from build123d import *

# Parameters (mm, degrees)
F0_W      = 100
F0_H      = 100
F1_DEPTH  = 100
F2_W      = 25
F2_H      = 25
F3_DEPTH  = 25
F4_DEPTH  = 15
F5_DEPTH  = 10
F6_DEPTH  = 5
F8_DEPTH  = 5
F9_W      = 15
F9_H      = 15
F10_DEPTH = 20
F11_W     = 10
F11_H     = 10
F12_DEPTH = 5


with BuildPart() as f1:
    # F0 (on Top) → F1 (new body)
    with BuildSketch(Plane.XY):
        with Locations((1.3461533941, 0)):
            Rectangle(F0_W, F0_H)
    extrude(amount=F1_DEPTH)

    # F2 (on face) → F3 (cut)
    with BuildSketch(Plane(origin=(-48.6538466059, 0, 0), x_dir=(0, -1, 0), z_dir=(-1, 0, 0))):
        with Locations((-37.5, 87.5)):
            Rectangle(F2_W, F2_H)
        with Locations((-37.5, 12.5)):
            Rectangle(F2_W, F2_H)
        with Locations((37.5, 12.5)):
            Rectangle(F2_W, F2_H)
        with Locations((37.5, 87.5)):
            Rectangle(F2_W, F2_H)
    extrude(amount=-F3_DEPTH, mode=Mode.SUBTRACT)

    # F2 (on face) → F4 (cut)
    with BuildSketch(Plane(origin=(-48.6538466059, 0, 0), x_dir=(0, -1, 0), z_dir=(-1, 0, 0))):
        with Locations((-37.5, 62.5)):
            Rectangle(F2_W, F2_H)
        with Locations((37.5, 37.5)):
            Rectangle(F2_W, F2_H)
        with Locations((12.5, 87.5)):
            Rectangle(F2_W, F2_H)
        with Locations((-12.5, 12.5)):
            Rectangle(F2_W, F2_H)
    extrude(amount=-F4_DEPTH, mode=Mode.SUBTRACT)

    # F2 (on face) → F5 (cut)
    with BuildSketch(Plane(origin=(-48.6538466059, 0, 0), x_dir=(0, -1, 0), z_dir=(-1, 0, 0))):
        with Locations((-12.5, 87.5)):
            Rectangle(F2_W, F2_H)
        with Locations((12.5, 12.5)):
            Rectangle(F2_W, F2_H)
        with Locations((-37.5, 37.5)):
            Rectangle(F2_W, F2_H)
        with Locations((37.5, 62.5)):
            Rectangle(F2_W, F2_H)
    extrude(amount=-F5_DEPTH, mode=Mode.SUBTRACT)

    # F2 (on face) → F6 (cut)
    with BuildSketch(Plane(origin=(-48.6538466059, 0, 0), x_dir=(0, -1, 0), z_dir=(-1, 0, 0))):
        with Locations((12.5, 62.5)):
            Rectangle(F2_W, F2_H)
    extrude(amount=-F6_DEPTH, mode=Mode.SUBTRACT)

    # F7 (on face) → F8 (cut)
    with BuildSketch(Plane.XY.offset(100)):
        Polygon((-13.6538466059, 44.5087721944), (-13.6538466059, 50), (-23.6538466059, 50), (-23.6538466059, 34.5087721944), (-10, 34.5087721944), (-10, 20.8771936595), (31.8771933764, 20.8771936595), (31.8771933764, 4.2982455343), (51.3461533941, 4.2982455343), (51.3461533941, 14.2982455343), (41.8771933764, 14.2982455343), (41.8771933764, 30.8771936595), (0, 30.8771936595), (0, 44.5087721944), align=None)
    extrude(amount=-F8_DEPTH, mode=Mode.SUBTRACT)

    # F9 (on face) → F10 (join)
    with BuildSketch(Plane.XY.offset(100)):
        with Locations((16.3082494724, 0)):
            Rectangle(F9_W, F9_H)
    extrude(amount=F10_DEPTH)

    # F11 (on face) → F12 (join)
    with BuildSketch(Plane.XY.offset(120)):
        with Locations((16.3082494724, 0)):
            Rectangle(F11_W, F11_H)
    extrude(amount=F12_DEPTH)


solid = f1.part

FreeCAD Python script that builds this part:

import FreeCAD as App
import Part
import Sketcher

doc = App.newDocument("Part")
params = doc.addObject("Spreadsheet::Sheet", "Params")
for row, (alias, value) in enumerate([
    ("sketch1_width", "100 mm"),
    ("pad1_length", "100 mm"),
    ("sketch2_width", "25 mm"),
    ("pocket1_length", "25 mm"),
    ("sketch3_width", "25 mm"),
    ("pocket2_length", "15 mm"),
    ("sketch4_width", "25 mm"),
    ("pocket3_length", "10 mm"),
    ("sketch5_width", "25 mm"),
    ("pocket4_length", "5 mm"),
    ("sketch6_width", "10 mm"),
    ("pocket5_length", "5 mm"),
    ("sketch7_width", "15 mm"),
    ("pad2_length", "20 mm"),
    ("sketch8_width", "10 mm"),
    ("pad3_length", "5 mm"),
], start=1):
    params.set(f"A{row}", alias)
    params.set(f"B{row}", "=" + value)
    params.setAlias(f"B{row}", alias)

body = doc.addObject("PartDesign::Body", "Body")

# Sketch on XY plane
sketch1 = doc.addObject("Sketcher::SketchObject", "Sketch")
body.addObject(sketch1)
sketch1.AttachmentSupport = (doc.XY_Plane, [""])
sketch1.MapMode = "FlatFace"
sketch1.addGeometry(Part.LineSegment(App.Vector(-49, 50, 0), App.Vector(-49, -50, 0)), False)
sketch1.addGeometry(Part.LineSegment(App.Vector(-49, -50, 0), App.Vector(51, -50, 0)), False)
sketch1.addGeometry(Part.LineSegment(App.Vector(51, -50, 0), App.Vector(51, 50, 0)), False)
sketch1.addGeometry(Part.LineSegment(App.Vector(51, 50, 0), App.Vector(-49, 50, 0)), False)
sketch1.addConstraint(Sketcher.Constraint("Coincident", 0, 2, 1, 1))
sketch1.addConstraint(Sketcher.Constraint("Coincident", 1, 2, 2, 1))
sketch1.addConstraint(Sketcher.Constraint("Coincident", 2, 2, 3, 1))
sketch1.addConstraint(Sketcher.Constraint("Coincident", 3, 2, 0, 1))
sketch1.addConstraint(Sketcher.Constraint("Vertical", 0))
sketch1.addConstraint(Sketcher.Constraint("Horizontal", 1))
sketch1.addConstraint(Sketcher.Constraint("Vertical", 2))
sketch1.addConstraint(Sketcher.Constraint("Horizontal", 3))
sketch1.addConstraint(Sketcher.Constraint("Equal", 3, 0))
sketch1.addConstraint(Sketcher.Constraint("DistanceX", 1, 1, 1, 2, 100.0))
sketch1.addConstraint(Sketcher.Constraint("DistanceY", 0, 2, -1, 1, 50.0))
sketch1.addConstraint(Sketcher.Constraint("DistanceX", 0, 2, -1, 1, 48.653847))
sketch1.setExpression("Constraints[9]", "Params.sketch1_width")
pad1 = doc.addObject("PartDesign::Pad", "Pad")
body.addObject(pad1)
pad1.Profile = sketch1
pad1.setExpression("Length", "Params.pad1_length")

# Sketch on YZ plane
sketch2 = doc.addObject("Sketcher::SketchObject", "Sketch001")
body.addObject(sketch2)
sketch2.AttachmentSupport = (doc.YZ_Plane, [""])
sketch2.MapMode = "FlatFace"
sketch2.AttachmentOffset = App.Placement(App.Vector(0, 0, -48.653847), App.Rotation())
sketch2.addGeometry(Part.LineSegment(App.Vector(50, 100, 0), App.Vector(50, 75, 0)), False)
sketch2.addGeometry(Part.LineSegment(App.Vector(50, 75, 0), App.Vector(25, 75, 0)), False)
sketch2.addGeometry(Part.LineSegment(App.Vector(25, 75, 0), App.Vector(25, 100, 0)), False)
sketch2.addGeometry(Part.LineSegment(App.Vector(25, 100, 0), App.Vector(50, 100, 0)), False)
sketch2.addGeometry(Part.LineSegment(App.Vector(50, 25, 0), App.Vector(50, 0, 0)), False)
sketch2.addGeometry(Part.LineSegment(App.Vector(50, 0, 0), App.Vector(25, 0, 0)), False)
sketch2.addGeometry(Part.LineSegment(App.Vector(25, 0, 0), App.Vector(25, 25, 0)), False)
sketch2.addGeometry(Part.LineSegment(App.Vector(25, 25, 0), App.Vector(50, 25, 0)), False)
sketch2.addGeometry(Part.LineSegment(App.Vector(-25, 25, 0), App.Vector(-25, 0, 0)), False)
sketch2.addGeometry(Part.LineSegment(App.Vector(-25, 0, 0), App.Vector(-50, 0, 0)), False)
sketch2.addGeometry(Part.LineSegment(App.Vector(-50, 0, 0), App.Vector(-50, 25, 0)), False)
sketch2.addGeometry(Part.LineSegment(App.Vector(-50, 25, 0), App.Vector(-25, 25, 0)), False)
sketch2.addGeometry(Part.LineSegment(App.Vector(-25, 100, 0), App.Vector(-25, 75, 0)), False)
sketch2.addGeometry(Part.LineSegment(App.Vector(-25, 75, 0), App.Vector(-50, 75, 0)), False)
sketch2.addGeometry(Part.LineSegment(App.Vector(-50, 75, 0), App.Vector(-50, 100, 0)), False)
sketch2.addGeometry(Part.LineSegment(App.Vector(-50, 100, 0), App.Vector(-25, 100, 0)), False)
sketch2.addConstraint(Sketcher.Constraint("Coincident", 0, 2, 1, 1))
sketch2.addConstraint(Sketcher.Constraint("Coincident", 1, 2, 2, 1))
sketch2.addConstraint(Sketcher.Constraint("Coincident", 2, 2, 3, 1))
sketch2.addConstraint(Sketcher.Constraint("Coincident", 3, 2, 0, 1))
sketch2.addConstraint(Sketcher.Constraint("Coincident", 4, 2, 5, 1))
sketch2.addConstraint(Sketcher.Constraint("Coincident", 5, 2, 6, 1))
sketch2.addConstraint(Sketcher.Constraint("Coincident", 6, 2, 7, 1))
sketch2.addConstraint(Sketcher.Constraint("Coincident", 7, 2, 4, 1))
sketch2.addConstraint(Sketcher.Constraint("Coincident", 8, 2, 9, 1))
sketch2.addConstraint(Sketcher.Constraint("Coincident", 9, 2, 10, 1))
sketch2.addConstraint(Sketcher.Constraint("Coincident", 10, 2, 11, 1))
sketch2.addConstraint(Sketcher.Constraint("Coincident", 11, 2, 8, 1))
sketch2.addConstraint(Sketcher.Constraint("Coincident", 12, 2, 13, 1))
sketch2.addConstraint(Sketcher.Constraint("Coincident", 13, 2, 14, 1))
sketch2.addConstraint(Sketcher.Constraint("Coincident", 14, 2, 15, 1))
sketch2.addConstraint(Sketcher.Constraint("Coincident", 15, 2, 12, 1))
sketch2.addConstraint(Sketcher.Constraint("Vertical", 0))
sketch2.addConstraint(Sketcher.Constraint("Horizontal", 1))
sketch2.addConstraint(Sketcher.Constraint("Vertical", 2))
sketch2.addConstraint(Sketcher.Constraint("Horizontal", 3))
sketch2.addConstraint(Sketcher.Constraint("Vertical", 4))
sketch2.addConstraint(Sketcher.Constraint("Horizontal", 5))
sketch2.addConstraint(Sketcher.Constraint("Vertical", 6))
sketch2.addConstraint(Sketcher.Constraint("Horizontal", 7))
sketch2.addConstraint(Sketcher.Constraint("Vertical", 8))
sketch2.addConstraint(Sketcher.Constraint("Horizontal", 9))
sketch2.addConstraint(Sketcher.Constraint("Vertical", 10))
sketch2.addConstraint(Sketcher.Constraint("Horizontal", 11))
sketch2.addConstraint(Sketcher.Constraint("Vertical", 12))
sketch2.addConstraint(Sketcher.Constraint("Horizontal", 13))
sketch2.addConstraint(Sketcher.Constraint("Vertical", 14))
sketch2.addConstraint(Sketcher.Constraint("Horizontal", 15))
sketch2.addConstraint(Sketcher.Constraint("Symmetric", 5, 2, 8, 2, -1, 1))
sketch2.addConstraint(Sketcher.Constraint("Symmetric", 4, 2, 9, 2, -2))
sketch2.addConstraint(Sketcher.Constraint("Symmetric", 1, 2, 12, 2, -2))
sketch2.addConstraint(Sketcher.Constraint("Symmetric", 3, 2, 14, 2, -2))
sketch2.addConstraint(Sketcher.Constraint("Horizontal", 7, 2, 10, 2))
sketch2.addConstraint(Sketcher.Constraint("Vertical", 3, 2, 4, 2))
sketch2.addConstraint(Sketcher.Constraint("Vertical", 2, 2, 5, 2))
sketch2.addConstraint(Sketcher.Constraint("Equal", 15, 0))
sketch2.addConstraint(Sketcher.Constraint("Equal", 2, 4))
sketch2.addConstraint(Sketcher.Constraint("DistanceX", 1, 2, 1, 1, 25.0))
sketch2.addConstraint(Sketcher.Constraint("DistanceX", -1, 1, 0, 2, 50.0))
sketch2.addConstraint(Sketcher.Constraint("DistanceY", -1, 1, 0, 2, 75.0))
sketch2.setExpression("Constraints[41]", "Params.sketch2_width")
pocket1 = doc.addObject("PartDesign::Pocket", "Pocket")
body.addObject(pocket1)
pocket1.Profile = sketch2
pocket1.setExpression("Length", "Params.pocket1_length")
pocket1.Reversed = True

# Sketch on YZ plane
sketch3 = doc.addObject("Sketcher::SketchObject", "Sketch002")
body.addObject(sketch3)
sketch3.AttachmentSupport = (doc.YZ_Plane, [""])
sketch3.MapMode = "FlatFace"
sketch3.AttachmentOffset = App.Placement(App.Vector(0, 0, -48.653847), App.Rotation())
sketch3.addGeometry(Part.LineSegment(App.Vector(50, 75, 0), App.Vector(50, 50, 0)), False)
sketch3.addGeometry(Part.LineSegment(App.Vector(50, 50, 0), App.Vector(25, 50, 0)), False)
sketch3.addGeometry(Part.LineSegment(App.Vector(25, 50, 0), App.Vector(25, 75, 0)), False)
sketch3.addGeometry(Part.LineSegment(App.Vector(25, 75, 0), App.Vector(50, 75, 0)), False)
sketch3.addGeometry(Part.LineSegment(App.Vector(-25, 50, 0), App.Vector(-25, 25, 0)), False)
sketch3.addGeometry(Part.LineSegment(App.Vector(-25, 25, 0), App.Vector(-50, 25, 0)), False)
sketch3.addGeometry(Part.LineSegment(App.Vector(-50, 25, 0), App.Vector(-50, 50, 0)), False)
sketch3.addGeometry(Part.LineSegment(App.Vector(-50, 50, 0), App.Vector(-25, 50, 0)), False)
sketch3.addGeometry(Part.LineSegment(App.Vector(0, 100, 0), App.Vector(0, 75, 0)), False)
sketch3.addGeometry(Part.LineSegment(App.Vector(0, 75, 0), App.Vector(-25, 75, 0)), False)
sketch3.addGeometry(Part.LineSegment(App.Vector(-25, 75, 0), App.Vector(-25, 100, 0)), False)
sketch3.addGeometry(Part.LineSegment(App.Vector(-25, 100, 0), App.Vector(0, 100, 0)), False)
sketch3.addGeometry(Part.LineSegment(App.Vector(25, 25, 0), App.Vector(25, 0, 0)), False)
sketch3.addGeometry(Part.LineSegment(App.Vector(25, 0, 0), App.Vector(0, 0, 0)), False)
sketch3.addGeometry(Part.LineSegment(App.Vector(0, 0, 0), App.Vector(0, 25, 0)), False)
sketch3.addGeometry(Part.LineSegment(App.Vector(0, 25, 0), App.Vector(25, 25, 0)), False)
sketch3.addConstraint(Sketcher.Constraint("Coincident", 0, 2, 1, 1))
sketch3.addConstraint(Sketcher.Constraint("Coincident", 1, 2, 2, 1))
sketch3.addConstraint(Sketcher.Constraint("Coincident", 2, 2, 3, 1))
sketch3.addConstraint(Sketcher.Constraint("Coincident", 3, 2, 0, 1))
sketch3.addConstraint(Sketcher.Constraint("Coincident", 4, 2, 5, 1))
sketch3.addConstraint(Sketcher.Constraint("Coincident", 5, 2, 6, 1))
sketch3.addConstraint(Sketcher.Constraint("Coincident", 6, 2, 7, 1))
sketch3.addConstraint(Sketcher.Constraint("Coincident", 7, 2, 4, 1))
sketch3.addConstraint(Sketcher.Constraint("Coincident", 8, 2, 9, 1))
sketch3.addConstraint(Sketcher.Constraint("Coincident", 9, 2, 10, 1))
sketch3.addConstraint(Sketcher.Constraint("Coincident", 10, 2, 11, 1))
sketch3.addConstraint(Sketcher.Constraint("Coincident", 11, 2, 8, 1))
sketch3.addConstraint(Sketcher.Constraint("Coincident", 12, 2, 13, 1))
sketch3.addConstraint(Sketcher.Constraint("Coincident", 13, 2, 14, 1))
sketch3.addConstraint(Sketcher.Constraint("Coincident", 14, 2, 15, 1))
sketch3.addConstraint(Sketcher.Constraint("Coincident", 15, 2, 12, 1))
sketch3.addConstraint(Sketcher.Constraint("Vertical", 0))
sketch3.addConstraint(Sketcher.Constraint("Horizontal", 1))
sketch3.addConstraint(Sketcher.Constraint("Vertical", 2))
sketch3.addConstraint(Sketcher.Constraint("Horizontal", 3))
sketch3.addConstraint(Sketcher.Constraint("Vertical", 4))
sketch3.addConstraint(Sketcher.Constraint("Horizontal", 5))
sketch3.addConstraint(Sketcher.Constraint("Vertical", 6))
sketch3.addConstraint(Sketcher.Constraint("Horizontal", 7))
sketch3.addConstraint(Sketcher.Constraint("Vertical", 8))
sketch3.addConstraint(Sketcher.Constraint("Horizontal", 9))
sketch3.addConstraint(Sketcher.Constraint("Vertical", 10))
sketch3.addConstraint(Sketcher.Constraint("Horizontal", 11))
sketch3.addConstraint(Sketcher.Constraint("Vertical", 12))
sketch3.addConstraint(Sketcher.Constraint("Horizontal", 13))
sketch3.addConstraint(Sketcher.Constraint("Vertical", 14))
sketch3.addConstraint(Sketcher.Constraint("Horizontal", 15))
sketch3.addConstraint(Sketcher.Constraint("Coincident", 13, 2, -1, 1))
sketch3.addConstraint(Sketcher.Constraint("Symmetric", 0, 2, 6, 2, -2))
sketch3.addConstraint(Sketcher.Constraint("Symmetric", 2, 2, 9, 2, -2))
sketch3.addConstraint(Sketcher.Constraint("Symmetric", 4, 2, 15, 2, -2))
sketch3.addConstraint(Sketcher.Constraint("PointOnObject", 8, 2, -2))
sketch3.addConstraint(Sketcher.Constraint("Vertical", 7, 2, 9, 2))
sketch3.addConstraint(Sketcher.Constraint("Equal", 7, 9))
sketch3.addConstraint(Sketcher.Constraint("Equal", 15, 0))
sketch3.addConstraint(Sketcher.Constraint("Equal", 2, 4))
sketch3.addConstraint(Sketcher.Constraint("Equal", 6, 8))
sketch3.addConstraint(Sketcher.Constraint("Equal", 10, 12))
sketch3.addConstraint(Sketcher.Constraint("DistanceX", 1, 2, 1, 1, 25.0))
sketch3.setExpression("Constraints[43]", "Params.sketch3_width")
pocket2 = doc.addObject("PartDesign::Pocket", "Pocket001")
body.addObject(pocket2)
pocket2.Profile = sketch3
pocket2.setExpression("Length", "Params.pocket2_length")
pocket2.Reversed = True

# Sketch on YZ plane
sketch4 = doc.addObject("Sketcher::SketchObject", "Sketch003")
body.addObject(sketch4)
sketch4.AttachmentSupport = (doc.YZ_Plane, [""])
sketch4.MapMode = "FlatFace"
sketch4.AttachmentOffset = App.Placement(App.Vector(0, 0, -48.653847), App.Rotation())
sketch4.addGeometry(Part.LineSegment(App.Vector(25, 100, 0), App.Vector(25, 75, 0)), False)
sketch4.addGeometry(Part.LineSegment(App.Vector(25, 75, 0), App.Vector(0, 75, 0)), False)
sketch4.addGeometry(Part.LineSegment(App.Vector(0, 75, 0), App.Vector(0, 100, 0)), False)
sketch4.addGeometry(Part.LineSegment(App.Vector(0, 100, 0), App.Vector(25, 100, 0)), False)
sketch4.addGeometry(Part.LineSegment(App.Vector(0, 25, 0), App.Vector(0, 0, 0)), False)
sketch4.addGeometry(Part.LineSegment(App.Vector(0, 0, 0), App.Vector(-25, 0, 0)), False)
sketch4.addGeometry(Part.LineSegment(App.Vector(-25, 0, 0), App.Vector(-25, 25, 0)), False)
sketch4.addGeometry(Part.LineSegment(App.Vector(-25, 25, 0), App.Vector(0, 25, 0)), False)
sketch4.addGeometry(Part.LineSegment(App.Vector(50, 50, 0), App.Vector(50, 25, 0)), False)
sketch4.addGeometry(Part.LineSegment(App.Vector(50, 25, 0), App.Vector(25, 25, 0)), False)
sketch4.addGeometry(Part.LineSegment(App.Vector(25, 25, 0), App.Vector(25, 50, 0)), False)
sketch4.addGeometry(Part.LineSegment(App.Vector(25, 50, 0), App.Vector(50, 50, 0)), False)
sketch4.addGeometry(Part.LineSegment(App.Vector(-25, 75, 0), App.Vector(-25, 50, 0)), False)
sketch4.addGeometry(Part.LineSegment(App.Vector(-25, 50, 0), App.Vector(-50, 50, 0)), False)
sketch4.addGeometry(Part.LineSegment(App.Vector(-50, 50, 0), App.Vector(-50, 75, 0)), False)
sketch4.addGeometry(Part.LineSegment(App.Vector(-50, 75, 0), App.Vector(-25, 75, 0)), False)
sketch4.addConstraint(Sketcher.Constraint("Coincident", 0, 2, 1, 1))
sketch4.addConstraint(Sketcher.Constraint("Coincident", 1, 2, 2, 1))
sketch4.addConstraint(Sketcher.Constraint("Coincident", 2, 2, 3, 1))
sketch4.addConstraint(Sketcher.Constraint("Coincident", 3, 2, 0, 1))
sketch4.addConstraint(Sketcher.Constraint("Coincident", 4, 2, 5, 1))
sketch4.addConstraint(Sketcher.Constraint("Coincident", 5, 2, 6, 1))
sketch4.addConstraint(Sketcher.Constraint("Coincident", 6, 2, 7, 1))
sketch4.addConstraint(Sketcher.Constraint("Coincident", 7, 2, 4, 1))
sketch4.addConstraint(Sketcher.Constraint("Coincident", 8, 2, 9, 1))
sketch4.addConstraint(Sketcher.Constraint("Coincident", 9, 2, 10, 1))
sketch4.addConstraint(Sketcher.Constraint("Coincident", 10, 2, 11, 1))
sketch4.addConstraint(Sketcher.Constraint("Coincident", 11, 2, 8, 1))
sketch4.addConstraint(Sketcher.Constraint("Coincident", 12, 2, 13, 1))
sketch4.addConstraint(Sketcher.Constraint("Coincident", 13, 2, 14, 1))
sketch4.addConstraint(Sketcher.Constraint("Coincident", 14, 2, 15, 1))
sketch4.addConstraint(Sketcher.Constraint("Coincident", 15, 2, 12, 1))
sketch4.addConstraint(Sketcher.Constraint("Vertical", 0))
sketch4.addConstraint(Sketcher.Constraint("Horizontal", 1))
sketch4.addConstraint(Sketcher.Constraint("Vertical", 2))
sketch4.addConstraint(Sketcher.Constraint("Horizontal", 3))
sketch4.addConstraint(Sketcher.Constraint("Vertical", 4))
sketch4.addConstraint(Sketcher.Constraint("Horizontal", 5))
sketch4.addConstraint(Sketcher.Constraint("Vertical", 6))
sketch4.addConstraint(Sketcher.Constraint("Horizontal", 7))
sketch4.addConstraint(Sketcher.Constraint("Vertical", 8))
sketch4.addConstraint(Sketcher.Constraint("Horizontal", 9))
sketch4.addConstraint(Sketcher.Constraint("Vertical", 10))
sketch4.addConstraint(Sketcher.Constraint("Horizontal", 11))
sketch4.addConstraint(Sketcher.Constraint("Vertical", 12))
sketch4.addConstraint(Sketcher.Constraint("Horizontal", 13))
sketch4.addConstraint(Sketcher.Constraint("Vertical", 14))
sketch4.addConstraint(Sketcher.Constraint("Horizontal", 15))
sketch4.addConstraint(Sketcher.Constraint("Coincident", 4, 2, -1, 1))
sketch4.addConstraint(Sketcher.Constraint("Symmetric", 6, 2, 9, 2, -2))
sketch4.addConstraint(Sketcher.Constraint("Symmetric", 10, 2, 12, 2, -2))
sketch4.addConstraint(Sketcher.Constraint("Symmetric", 0, 2, 15, 2, -2))
sketch4.addConstraint(Sketcher.Constraint("PointOnObject", 1, 2, -2))
sketch4.addConstraint(Sketcher.Constraint("Equal", 7, 9))
sketch4.addConstraint(Sketcher.Constraint("Equal", 11, 13))
sketch4.addConstraint(Sketcher.Constraint("Equal", 15, 0))
sketch4.addConstraint(Sketcher.Constraint("Equal", 2, 4))
sketch4.addConstraint(Sketcher.Constraint("Equal", 6, 8))
sketch4.addConstraint(Sketcher.Constraint("Equal", 10, 12))
sketch4.addConstraint(Sketcher.Constraint("DistanceX", 1, 2, 1, 1, 25.0))
sketch4.setExpression("Constraints[43]", "Params.sketch4_width")
pocket3 = doc.addObject("PartDesign::Pocket", "Pocket002")
body.addObject(pocket3)
pocket3.Profile = sketch4
pocket3.setExpression("Length", "Params.pocket3_length")
pocket3.Reversed = True

# Sketch on YZ plane
sketch5 = doc.addObject("Sketcher::SketchObject", "Sketch004")
body.addObject(sketch5)
sketch5.AttachmentSupport = (doc.YZ_Plane, [""])
sketch5.MapMode = "FlatFace"
sketch5.AttachmentOffset = App.Placement(App.Vector(0, 0, -48.653847), App.Rotation())
sketch5.addGeometry(Part.LineSegment(App.Vector(0, 75, 0), App.Vector(0, 50, 0)), False)
sketch5.addGeometry(Part.LineSegment(App.Vector(0, 50, 0), App.Vector(-25, 50, 0)), False)
sketch5.addGeometry(Part.LineSegment(App.Vector(-25, 50, 0), App.Vector(-25, 75, 0)), False)
sketch5.addGeometry(Part.LineSegment(App.Vector(-25, 75, 0), App.Vector(0, 75, 0)), False)
sketch5.addConstraint(Sketcher.Constraint("Coincident", 0, 2, 1, 1))
sketch5.addConstraint(Sketcher.Constraint("Coincident", 1, 2, 2, 1))
sketch5.addConstraint(Sketcher.Constraint("Coincident", 2, 2, 3, 1))
sketch5.addConstraint(Sketcher.Constraint("Coincident", 3, 2, 0, 1))
sketch5.addConstraint(Sketcher.Constraint("Vertical", 0))
sketch5.addConstraint(Sketcher.Constraint("Horizontal", 1))
sketch5.addConstraint(Sketcher.Constraint("Vertical", 2))
sketch5.addConstraint(Sketcher.Constraint("Horizontal", 3))
sketch5.addConstraint(Sketcher.Constraint("PointOnObject", 0, 2, -2))
sketch5.addConstraint(Sketcher.Constraint("Equal", 3, 0))
sketch5.addConstraint(Sketcher.Constraint("DistanceX", 1, 2, 1, 1, 25.0))
sketch5.addConstraint(Sketcher.Constraint("DistanceY", -1, 1, 0, 2, 50.0))
sketch5.setExpression("Constraints[10]", "Params.sketch5_width")
pocket4 = doc.addObject("PartDesign::Pocket", "Pocket003")
body.addObject(pocket4)
pocket4.Profile = sketch5
pocket4.setExpression("Length", "Params.pocket4_length")
pocket4.Reversed = True

# Sketch on XY plane
sketch6 = doc.addObject("Sketcher::SketchObject", "Sketch005")
body.addObject(sketch6)
sketch6.AttachmentSupport = (doc.XY_Plane, [""])
sketch6.MapMode = "FlatFace"
sketch6.AttachmentOffset = App.Placement(App.Vector(0, 0, 100), App.Rotation())
sketch6.addGeometry(Part.LineSegment(App.Vector(-14, 45, 0), App.Vector(-14, 50, 0)), False)
sketch6.addGeometry(Part.LineSegment(App.Vector(-14, 50, 0), App.Vector(-24, 50, 0)), False)
sketch6.addGeometry(Part.LineSegment(App.Vector(-24, 50, 0), App.Vector(-24, 35, 0)), False)
sketch6.addGeometry(Part.LineSegment(App.Vector(-24, 35, 0), App.Vector(-10, 35, 0)), False)
sketch6.addGeometry(Part.LineSegment(App.Vector(-10, 35, 0), App.Vector(-10, 21, 0)), False)
sketch6.addGeometry(Part.LineSegment(App.Vector(-10, 21, 0), App.Vector(32, 21, 0)), False)
sketch6.addGeometry(Part.LineSegment(App.Vector(32, 21, 0), App.Vector(32, 4, 0)), False)
sketch6.addGeometry(Part.LineSegment(App.Vector(32, 4, 0), App.Vector(51, 4, 0)), False)
sketch6.addGeometry(Part.LineSegment(App.Vector(51, 4, 0), App.Vector(51, 14, 0)), False)
sketch6.addGeometry(Part.LineSegment(App.Vector(51, 14, 0), App.Vector(42, 14, 0)), False)
sketch6.addGeometry(Part.LineSegment(App.Vector(42, 14, 0), App.Vector(42, 31, 0)), False)
sketch6.addGeometry(Part.LineSegment(App.Vector(42, 31, 0), App.Vector(0, 31, 0)), False)
sketch6.addGeometry(Part.LineSegment(App.Vector(0, 31, 0), App.Vector(0, 45, 0)), False)
sketch6.addGeometry(Part.LineSegment(App.Vector(0, 45, 0), App.Vector(-14, 45, 0)), False)
sketch6.addConstraint(Sketcher.Constraint("Coincident", 0, 2, 1, 1))
sketch6.addConstraint(Sketcher.Constraint("Coincident", 1, 2, 2, 1))
sketch6.addConstraint(Sketcher.Constraint("Coincident", 2, 2, 3, 1))
sketch6.addConstraint(Sketcher.Constraint("Coincident", 3, 2, 4, 1))
sketch6.addConstraint(Sketcher.Constraint("Coincident", 4, 2, 5, 1))
sketch6.addConstraint(Sketcher.Constraint("Coincident", 5, 2, 6, 1))
sketch6.addConstraint(Sketcher.Constraint("Coincident", 6, 2, 7, 1))
sketch6.addConstraint(Sketcher.Constraint("Coincident", 7, 2, 8, 1))
sketch6.addConstraint(Sketcher.Constraint("Coincident", 8, 2, 9, 1))
sketch6.addConstraint(Sketcher.Constraint("Coincident", 9, 2, 10, 1))
sketch6.addConstraint(Sketcher.Constraint("Coincident", 10, 2, 11, 1))
sketch6.addConstraint(Sketcher.Constraint("Coincident", 11, 2, 12, 1))
sketch6.addConstraint(Sketcher.Constraint("Coincident", 12, 2, 13, 1))
sketch6.addConstraint(Sketcher.Constraint("Coincident", 13, 2, 0, 1))
sketch6.addConstraint(Sketcher.Constraint("Vertical", 0))
sketch6.addConstraint(Sketcher.Constraint("Horizontal", 1))
sketch6.addConstraint(Sketcher.Constraint("Vertical", 2))
sketch6.addConstraint(Sketcher.Constraint("Horizontal", 3))
sketch6.addConstraint(Sketcher.Constraint("Vertical", 4))
sketch6.addConstraint(Sketcher.Constraint("Horizontal", 5))
sketch6.addConstraint(Sketcher.Constraint("Vertical", 6))
sketch6.addConstraint(Sketcher.Constraint("Horizontal", 7))
sketch6.addConstraint(Sketcher.Constraint("Vertical", 8))
sketch6.addConstraint(Sketcher.Constraint("Horizontal", 9))
sketch6.addConstraint(Sketcher.Constraint("Vertical", 10))
sketch6.addConstraint(Sketcher.Constraint("Horizontal", 11))
sketch6.addConstraint(Sketcher.Constraint("Vertical", 12))
sketch6.addConstraint(Sketcher.Constraint("Horizontal", 13))
sketch6.addConstraint(Sketcher.Constraint("PointOnObject", 11, 2, -2))
sketch6.addConstraint(Sketcher.Constraint("Equal", 5, 11))
sketch6.addConstraint(Sketcher.Constraint("Equal", 3, 13))
sketch6.addConstraint(Sketcher.Constraint("Equal", 1, 8))
sketch6.addConstraint(Sketcher.Constraint("Equal", 6, 10))
sketch6.addConstraint(Sketcher.Constraint("Equal", 4, 12))
sketch6.addConstraint(Sketcher.Constraint("DistanceX", 1, 2, 1, 1, 10.0))
sketch6.addConstraint(Sketcher.Constraint("DistanceY", -1, 1, 0, 2, 50.0))
sketch6.addConstraint(Sketcher.Constraint("DistanceX", 0, 2, 7, 2, 65.0))
sketch6.addConstraint(Sketcher.Constraint("DistanceX", 7, 1, 7, 2, 19.46896))
sketch6.addConstraint(Sketcher.Constraint("DistanceY", 4, 2, 4, 1, 13.631579))
sketch6.addConstraint(Sketcher.Constraint("DistanceY", 6, 2, 6, 1, 16.578948))
sketch6.addConstraint(Sketcher.Constraint("DistanceX", 3, 1, 3, 2, 13.653847))
sketch6.addConstraint(Sketcher.Constraint("DistanceY", 0, 1, 0, 2, 5.491228))
sketch6.setExpression("Constraints[34]", "Params.sketch6_width")
pocket5 = doc.addObject("PartDesign::Pocket", "Pocket004")
body.addObject(pocket5)
pocket5.Profile = sketch6
pocket5.setExpression("Length", "Params.pocket5_length")

# Sketch on XY plane
sketch7 = doc.addObject("Sketcher::SketchObject", "Sketch006")
body.addObject(sketch7)
sketch7.AttachmentSupport = (doc.XY_Plane, [""])
sketch7.MapMode = "FlatFace"
sketch7.AttachmentOffset = App.Placement(App.Vector(0, 0, 100), App.Rotation())
sketch7.addGeometry(Part.LineSegment(App.Vector(9, 8, 0), App.Vector(9, -8, 0)), False)
sketch7.addGeometry(Part.LineSegment(App.Vector(9, -8, 0), App.Vector(24, -8, 0)), False)
sketch7.addGeometry(Part.LineSegment(App.Vector(24, -8, 0), App.Vector(24, 8, 0)), False)
sketch7.addGeometry(Part.LineSegment(App.Vector(24, 8, 0), App.Vector(9, 8, 0)), False)
sketch7.addConstraint(Sketcher.Constraint("Coincident", 0, 2, 1, 1))
sketch7.addConstraint(Sketcher.Constraint("Coincident", 1, 2, 2, 1))
sketch7.addConstraint(Sketcher.Constraint("Coincident", 2, 2, 3, 1))
sketch7.addConstraint(Sketcher.Constraint("Coincident", 3, 2, 0, 1))
sketch7.addConstraint(Sketcher.Constraint("Vertical", 0))
sketch7.addConstraint(Sketcher.Constraint("Horizontal", 1))
sketch7.addConstraint(Sketcher.Constraint("Vertical", 2))
sketch7.addConstraint(Sketcher.Constraint("Horizontal", 3))
sketch7.addConstraint(Sketcher.Constraint("Equal", 3, 0))
sketch7.addConstraint(Sketcher.Constraint("DistanceX", 1, 1, 1, 2, 15.0))
sketch7.addConstraint(Sketcher.Constraint("DistanceY", 0, 2, -1, 1, 7.5))
sketch7.addConstraint(Sketcher.Constraint("DistanceX", -1, 1, 0, 2, 8.808249))
sketch7.setExpression("Constraints[9]", "Params.sketch7_width")
pad2 = doc.addObject("PartDesign::Pad", "Pad001")
body.addObject(pad2)
pad2.Profile = sketch7
pad2.setExpression("Length", "Params.pad2_length")

# Sketch on XY plane
sketch8 = doc.addObject("Sketcher::SketchObject", "Sketch007")
body.addObject(sketch8)
sketch8.AttachmentSupport = (doc.XY_Plane, [""])
sketch8.MapMode = "FlatFace"
sketch8.AttachmentOffset = App.Placement(App.Vector(0, 0, 120), App.Rotation())
sketch8.addGeometry(Part.LineSegment(App.Vector(11, 5, 0), App.Vector(11, -5, 0)), False)
sketch8.addGeometry(Part.LineSegment(App.Vector(11, -5, 0), App.Vector(21, -5, 0)), False)
sketch8.addGeometry(Part.LineSegment(App.Vector(21, -5, 0), App.Vector(21, 5, 0)), False)
sketch8.addGeometry(Part.LineSegment(App.Vector(21, 5, 0), App.Vector(11, 5, 0)), False)
sketch8.addConstraint(Sketcher.Constraint("Coincident", 0, 2, 1, 1))
sketch8.addConstraint(Sketcher.Constraint("Coincident", 1, 2, 2, 1))
sketch8.addConstraint(Sketcher.Constraint("Coincident", 2, 2, 3, 1))
sketch8.addConstraint(Sketcher.Constraint("Coincident", 3, 2, 0, 1))
sketch8.addConstraint(Sketcher.Constraint("Vertical", 0))
sketch8.addConstraint(Sketcher.Constraint("Horizontal", 1))
sketch8.addConstraint(Sketcher.Constraint("Vertical", 2))
sketch8.addConstraint(Sketcher.Constraint("Horizontal", 3))
sketch8.addConstraint(Sketcher.Constraint("Equal", 3, 0))
sketch8.addConstraint(Sketcher.Constraint("DistanceX", 1, 1, 1, 2, 10.0))
sketch8.addConstraint(Sketcher.Constraint("DistanceY", 0, 2, -1, 1, 5.0))
sketch8.addConstraint(Sketcher.Constraint("DistanceX", -1, 1, 0, 2, 11.308249))
sketch8.setExpression("Constraints[9]", "Params.sketch8_width")
pad3 = doc.addObject("PartDesign::Pad", "Pad002")
body.addObject(pad3)
pad3.Profile = sketch8
pad3.setExpression("Length", "Params.pad3_length")

doc.recompute()
